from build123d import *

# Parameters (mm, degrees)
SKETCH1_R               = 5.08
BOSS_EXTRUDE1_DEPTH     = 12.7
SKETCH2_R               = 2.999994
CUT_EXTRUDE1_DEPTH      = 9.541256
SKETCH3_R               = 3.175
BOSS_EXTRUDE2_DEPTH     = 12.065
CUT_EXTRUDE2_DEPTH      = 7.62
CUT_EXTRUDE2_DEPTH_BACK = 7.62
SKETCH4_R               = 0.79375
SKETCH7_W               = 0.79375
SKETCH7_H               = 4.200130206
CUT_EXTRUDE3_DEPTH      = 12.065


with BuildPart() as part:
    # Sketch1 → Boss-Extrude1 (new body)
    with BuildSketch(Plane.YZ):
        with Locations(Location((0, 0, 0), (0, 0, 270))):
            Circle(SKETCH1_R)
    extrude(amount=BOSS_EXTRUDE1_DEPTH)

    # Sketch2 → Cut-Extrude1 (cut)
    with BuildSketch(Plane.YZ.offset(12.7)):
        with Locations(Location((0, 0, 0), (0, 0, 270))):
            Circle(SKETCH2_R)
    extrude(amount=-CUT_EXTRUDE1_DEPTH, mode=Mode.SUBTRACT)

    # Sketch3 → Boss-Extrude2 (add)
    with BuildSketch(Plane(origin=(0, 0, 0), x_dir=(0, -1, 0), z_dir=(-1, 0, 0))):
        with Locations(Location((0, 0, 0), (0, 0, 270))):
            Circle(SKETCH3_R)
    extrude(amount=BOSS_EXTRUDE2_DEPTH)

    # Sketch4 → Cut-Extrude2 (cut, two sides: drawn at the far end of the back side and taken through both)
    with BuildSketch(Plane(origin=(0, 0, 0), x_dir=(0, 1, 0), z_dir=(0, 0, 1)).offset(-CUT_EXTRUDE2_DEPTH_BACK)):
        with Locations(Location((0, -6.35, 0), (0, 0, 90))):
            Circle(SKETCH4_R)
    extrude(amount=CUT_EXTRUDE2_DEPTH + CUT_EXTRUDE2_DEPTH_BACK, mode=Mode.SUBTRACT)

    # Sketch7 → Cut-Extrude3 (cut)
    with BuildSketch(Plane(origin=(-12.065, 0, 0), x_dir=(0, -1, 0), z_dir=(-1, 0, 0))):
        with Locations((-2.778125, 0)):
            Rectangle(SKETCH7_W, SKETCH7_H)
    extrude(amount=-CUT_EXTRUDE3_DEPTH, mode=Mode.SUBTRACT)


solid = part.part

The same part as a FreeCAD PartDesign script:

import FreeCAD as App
import Part
import Sketcher
Q = App.Units.Quantity

doc = App.newDocument("Part")
params = doc.addObject("Spreadsheet::Sheet", "Params")
for row, (alias, value) in enumerate([
    ("sketch1_diameter", "0.4 in"),
    ("pad1_length", "0.5 in"),
    ("pocket1_length", "9.541256 mm"),
    ("sketch3_diameter", "0.25 in"),
    ("pad2_length", "0.475 in"),
    ("sketch4_diameter", "0.0625 in"),
    ("sketch5_width", "0.03125 in"),
    ("pocket3_length", "0.475 in"),
], start=1):
    params.set(f"A{row}", alias)
    params.set(f"B{row}", "=" + value)
    params.setAlias(f"B{row}", alias)

body = doc.addObject("PartDesign::Body", "Body")

sketch1 = body.newObject("Sketcher::SketchObject", "Sketch")
sketch1.AttachmentSupport = (doc.getObject("YZ_Plane"), [""])
sketch1.MapMode = "FlatFace"
sketch1.addGeometry(Part.Circle(App.Vector(0, 0, 0), App.Vector(0, 0, 1), 5), False)
sketch1.addConstraint([
    Sketcher.Constraint("Coincident", 0, 3, -1, 1),
    Sketcher.Constraint("Diameter", 0, Q("0.4 in")),
])
sketch1.setExpression("Constraints[1]", "Params.sketch1_diameter")
pad1 = body.newObject("PartDesign::Pad", "Pad")
pad1.Profile = sketch1
pad1.setExpression("Length", "Params.pad1_length")

sketch2 = body.newObject("Sketcher::SketchObject", "Sketch001")
sketch2.AttachmentSupport = (doc.getObject("YZ_Plane"), [""])
sketch2.MapMode = "FlatFace"
sketch2.AttachmentOffset = App.Placement(App.Vector(0, 0, 0.5 * 25.4), App.Rotation())
sketch2.addGeometry(Part.Circle(App.Vector(0, 0, 0), App.Vector(0, 0, 1), 3), False)
sketch2.addConstraint([
    Sketcher.Constraint("Coincident", 0, 3, -1, 1),
    Sketcher.Constraint("Diameter", 0, 5.999988),
])
pocket1 = body.newObject("PartDesign::Pocket", "Pocket")
pocket1.Profile = sketch2
pocket1.setExpression("Length", "Params.pocket1_length")

sketch3 = body.newObject("Sketcher::SketchObject", "Sketch002")
sketch3.AttachmentSupport = (doc.getObject("YZ_Plane"), [""])
sketch3.MapMode = "FlatFace"
sketch3.addGeometry(Part.Circle(App.Vector(0, 0, 0), App.Vector(0, 0, 1), 3.2), False)
sketch3.addConstraint([
    Sketcher.Constraint("Coincident", 0, 3, -1, 1),
    Sketcher.Constraint("Diameter", 0, Q("0.25 in")),
])
sketch3.setExpression("Constraints[1]", "Params.sketch3_diameter")
pad2 = body.newObject("PartDesign::Pad", "Pad001")
pad2.Profile = sketch3
pad2.setExpression("Length", "Params.pad2_length")
pad2.Reversed = True

sketch4 = body.newObject("Sketcher::SketchObject", "Sketch003")
sketch4.AttachmentSupport = (doc.getObject("XY_Plane"), [""])
sketch4.MapMode = "FlatFace"
sketch4.addGeometry(Part.Circle(App.Vector(6.3, 0, 0), App.Vector(0, 0, 1), 0.8), False)
sketch4.addConstraint([
    Sketcher.Constraint("PointOnObject", 0, 3, -1),
    Sketcher.Constraint("Diameter", 0, Q("0.0625 in")),
    Sketcher.Constraint("DistanceX", -1, 1, 0, 3, Q("0.25 in")),
])
sketch4.setExpression("Constraints[1]", "Params.sketch4_diameter")
pocket2 = body.newObject("PartDesign::Pocket", "Pocket001")
pocket2.Profile = sketch4
pocket2.Type = "ThroughAll"
pocket2.Midplane = True

sketch5 = body.newObject("Sketcher::SketchObject", "Sketch004")
sketch5.AttachmentSupport = (doc.getObject("YZ_Plane"), [""])
sketch5.MapMode = "FlatFace"
sketch5.AttachmentOffset = App.Placement(App.Vector(0, 0, -0.475 * 25.4), App.Rotation())
sketch5.addGeometry([
    Part.LineSegment(App.Vector(3.2, 2.1, 0), App.Vector(3.2, -2.1, 0)),
    Part.LineSegment(App.Vector(3.2, -2.1, 0), App.Vector(2.4, -2.1, 0)),
    Part.LineSegment(App.Vector(2.4, -2.1, 0), App.Vector(2.4, 2.1, 0)),
    Part.LineSegment(App.Vector(2.4, 2.1, 0), App.Vector(3.2, 2.1, 0)),
], False)
sketch5.addConstraint([
    Sketcher.Constraint("Coincident", 0, 2, 1, 1),
    Sketcher.Constraint("Coincident", 1, 2, 2, 1),
    Sketcher.Constraint("Coincident", 2, 2, 3, 1),
    Sketcher.Constraint("Coincident", 3, 2, 0, 1),
    Sketcher.Constraint("Vertical", 0),
    Sketcher.Constraint("Horizontal", 1),
    Sketcher.Constraint("Vertical", 2),
    Sketcher.Constraint("Horizontal", 3),
    Sketcher.Constraint("DistanceX", 1, 2, 1, 1, Q("0.03125 in")),
    Sketcher.Constraint("DistanceX", -1, 1, 0, 2, Q("0.125 in")),
    Sketcher.Constraint("DistanceY", 0, 2, 0, 1, 4.20013),
    Sketcher.Constraint("DistanceY", 0, 2, -1, 1, 2.100065),
])
sketch5.setExpression("Constraints[8]", "Params.sketch5_width")
pocket3 = body.newObject("PartDesign::Pocket", "Pocket002")
pocket3.Profile = sketch5
pocket3.setExpression("Length", "Params.pocket3_length")
pocket3.Reversed = True

doc.recompute()
